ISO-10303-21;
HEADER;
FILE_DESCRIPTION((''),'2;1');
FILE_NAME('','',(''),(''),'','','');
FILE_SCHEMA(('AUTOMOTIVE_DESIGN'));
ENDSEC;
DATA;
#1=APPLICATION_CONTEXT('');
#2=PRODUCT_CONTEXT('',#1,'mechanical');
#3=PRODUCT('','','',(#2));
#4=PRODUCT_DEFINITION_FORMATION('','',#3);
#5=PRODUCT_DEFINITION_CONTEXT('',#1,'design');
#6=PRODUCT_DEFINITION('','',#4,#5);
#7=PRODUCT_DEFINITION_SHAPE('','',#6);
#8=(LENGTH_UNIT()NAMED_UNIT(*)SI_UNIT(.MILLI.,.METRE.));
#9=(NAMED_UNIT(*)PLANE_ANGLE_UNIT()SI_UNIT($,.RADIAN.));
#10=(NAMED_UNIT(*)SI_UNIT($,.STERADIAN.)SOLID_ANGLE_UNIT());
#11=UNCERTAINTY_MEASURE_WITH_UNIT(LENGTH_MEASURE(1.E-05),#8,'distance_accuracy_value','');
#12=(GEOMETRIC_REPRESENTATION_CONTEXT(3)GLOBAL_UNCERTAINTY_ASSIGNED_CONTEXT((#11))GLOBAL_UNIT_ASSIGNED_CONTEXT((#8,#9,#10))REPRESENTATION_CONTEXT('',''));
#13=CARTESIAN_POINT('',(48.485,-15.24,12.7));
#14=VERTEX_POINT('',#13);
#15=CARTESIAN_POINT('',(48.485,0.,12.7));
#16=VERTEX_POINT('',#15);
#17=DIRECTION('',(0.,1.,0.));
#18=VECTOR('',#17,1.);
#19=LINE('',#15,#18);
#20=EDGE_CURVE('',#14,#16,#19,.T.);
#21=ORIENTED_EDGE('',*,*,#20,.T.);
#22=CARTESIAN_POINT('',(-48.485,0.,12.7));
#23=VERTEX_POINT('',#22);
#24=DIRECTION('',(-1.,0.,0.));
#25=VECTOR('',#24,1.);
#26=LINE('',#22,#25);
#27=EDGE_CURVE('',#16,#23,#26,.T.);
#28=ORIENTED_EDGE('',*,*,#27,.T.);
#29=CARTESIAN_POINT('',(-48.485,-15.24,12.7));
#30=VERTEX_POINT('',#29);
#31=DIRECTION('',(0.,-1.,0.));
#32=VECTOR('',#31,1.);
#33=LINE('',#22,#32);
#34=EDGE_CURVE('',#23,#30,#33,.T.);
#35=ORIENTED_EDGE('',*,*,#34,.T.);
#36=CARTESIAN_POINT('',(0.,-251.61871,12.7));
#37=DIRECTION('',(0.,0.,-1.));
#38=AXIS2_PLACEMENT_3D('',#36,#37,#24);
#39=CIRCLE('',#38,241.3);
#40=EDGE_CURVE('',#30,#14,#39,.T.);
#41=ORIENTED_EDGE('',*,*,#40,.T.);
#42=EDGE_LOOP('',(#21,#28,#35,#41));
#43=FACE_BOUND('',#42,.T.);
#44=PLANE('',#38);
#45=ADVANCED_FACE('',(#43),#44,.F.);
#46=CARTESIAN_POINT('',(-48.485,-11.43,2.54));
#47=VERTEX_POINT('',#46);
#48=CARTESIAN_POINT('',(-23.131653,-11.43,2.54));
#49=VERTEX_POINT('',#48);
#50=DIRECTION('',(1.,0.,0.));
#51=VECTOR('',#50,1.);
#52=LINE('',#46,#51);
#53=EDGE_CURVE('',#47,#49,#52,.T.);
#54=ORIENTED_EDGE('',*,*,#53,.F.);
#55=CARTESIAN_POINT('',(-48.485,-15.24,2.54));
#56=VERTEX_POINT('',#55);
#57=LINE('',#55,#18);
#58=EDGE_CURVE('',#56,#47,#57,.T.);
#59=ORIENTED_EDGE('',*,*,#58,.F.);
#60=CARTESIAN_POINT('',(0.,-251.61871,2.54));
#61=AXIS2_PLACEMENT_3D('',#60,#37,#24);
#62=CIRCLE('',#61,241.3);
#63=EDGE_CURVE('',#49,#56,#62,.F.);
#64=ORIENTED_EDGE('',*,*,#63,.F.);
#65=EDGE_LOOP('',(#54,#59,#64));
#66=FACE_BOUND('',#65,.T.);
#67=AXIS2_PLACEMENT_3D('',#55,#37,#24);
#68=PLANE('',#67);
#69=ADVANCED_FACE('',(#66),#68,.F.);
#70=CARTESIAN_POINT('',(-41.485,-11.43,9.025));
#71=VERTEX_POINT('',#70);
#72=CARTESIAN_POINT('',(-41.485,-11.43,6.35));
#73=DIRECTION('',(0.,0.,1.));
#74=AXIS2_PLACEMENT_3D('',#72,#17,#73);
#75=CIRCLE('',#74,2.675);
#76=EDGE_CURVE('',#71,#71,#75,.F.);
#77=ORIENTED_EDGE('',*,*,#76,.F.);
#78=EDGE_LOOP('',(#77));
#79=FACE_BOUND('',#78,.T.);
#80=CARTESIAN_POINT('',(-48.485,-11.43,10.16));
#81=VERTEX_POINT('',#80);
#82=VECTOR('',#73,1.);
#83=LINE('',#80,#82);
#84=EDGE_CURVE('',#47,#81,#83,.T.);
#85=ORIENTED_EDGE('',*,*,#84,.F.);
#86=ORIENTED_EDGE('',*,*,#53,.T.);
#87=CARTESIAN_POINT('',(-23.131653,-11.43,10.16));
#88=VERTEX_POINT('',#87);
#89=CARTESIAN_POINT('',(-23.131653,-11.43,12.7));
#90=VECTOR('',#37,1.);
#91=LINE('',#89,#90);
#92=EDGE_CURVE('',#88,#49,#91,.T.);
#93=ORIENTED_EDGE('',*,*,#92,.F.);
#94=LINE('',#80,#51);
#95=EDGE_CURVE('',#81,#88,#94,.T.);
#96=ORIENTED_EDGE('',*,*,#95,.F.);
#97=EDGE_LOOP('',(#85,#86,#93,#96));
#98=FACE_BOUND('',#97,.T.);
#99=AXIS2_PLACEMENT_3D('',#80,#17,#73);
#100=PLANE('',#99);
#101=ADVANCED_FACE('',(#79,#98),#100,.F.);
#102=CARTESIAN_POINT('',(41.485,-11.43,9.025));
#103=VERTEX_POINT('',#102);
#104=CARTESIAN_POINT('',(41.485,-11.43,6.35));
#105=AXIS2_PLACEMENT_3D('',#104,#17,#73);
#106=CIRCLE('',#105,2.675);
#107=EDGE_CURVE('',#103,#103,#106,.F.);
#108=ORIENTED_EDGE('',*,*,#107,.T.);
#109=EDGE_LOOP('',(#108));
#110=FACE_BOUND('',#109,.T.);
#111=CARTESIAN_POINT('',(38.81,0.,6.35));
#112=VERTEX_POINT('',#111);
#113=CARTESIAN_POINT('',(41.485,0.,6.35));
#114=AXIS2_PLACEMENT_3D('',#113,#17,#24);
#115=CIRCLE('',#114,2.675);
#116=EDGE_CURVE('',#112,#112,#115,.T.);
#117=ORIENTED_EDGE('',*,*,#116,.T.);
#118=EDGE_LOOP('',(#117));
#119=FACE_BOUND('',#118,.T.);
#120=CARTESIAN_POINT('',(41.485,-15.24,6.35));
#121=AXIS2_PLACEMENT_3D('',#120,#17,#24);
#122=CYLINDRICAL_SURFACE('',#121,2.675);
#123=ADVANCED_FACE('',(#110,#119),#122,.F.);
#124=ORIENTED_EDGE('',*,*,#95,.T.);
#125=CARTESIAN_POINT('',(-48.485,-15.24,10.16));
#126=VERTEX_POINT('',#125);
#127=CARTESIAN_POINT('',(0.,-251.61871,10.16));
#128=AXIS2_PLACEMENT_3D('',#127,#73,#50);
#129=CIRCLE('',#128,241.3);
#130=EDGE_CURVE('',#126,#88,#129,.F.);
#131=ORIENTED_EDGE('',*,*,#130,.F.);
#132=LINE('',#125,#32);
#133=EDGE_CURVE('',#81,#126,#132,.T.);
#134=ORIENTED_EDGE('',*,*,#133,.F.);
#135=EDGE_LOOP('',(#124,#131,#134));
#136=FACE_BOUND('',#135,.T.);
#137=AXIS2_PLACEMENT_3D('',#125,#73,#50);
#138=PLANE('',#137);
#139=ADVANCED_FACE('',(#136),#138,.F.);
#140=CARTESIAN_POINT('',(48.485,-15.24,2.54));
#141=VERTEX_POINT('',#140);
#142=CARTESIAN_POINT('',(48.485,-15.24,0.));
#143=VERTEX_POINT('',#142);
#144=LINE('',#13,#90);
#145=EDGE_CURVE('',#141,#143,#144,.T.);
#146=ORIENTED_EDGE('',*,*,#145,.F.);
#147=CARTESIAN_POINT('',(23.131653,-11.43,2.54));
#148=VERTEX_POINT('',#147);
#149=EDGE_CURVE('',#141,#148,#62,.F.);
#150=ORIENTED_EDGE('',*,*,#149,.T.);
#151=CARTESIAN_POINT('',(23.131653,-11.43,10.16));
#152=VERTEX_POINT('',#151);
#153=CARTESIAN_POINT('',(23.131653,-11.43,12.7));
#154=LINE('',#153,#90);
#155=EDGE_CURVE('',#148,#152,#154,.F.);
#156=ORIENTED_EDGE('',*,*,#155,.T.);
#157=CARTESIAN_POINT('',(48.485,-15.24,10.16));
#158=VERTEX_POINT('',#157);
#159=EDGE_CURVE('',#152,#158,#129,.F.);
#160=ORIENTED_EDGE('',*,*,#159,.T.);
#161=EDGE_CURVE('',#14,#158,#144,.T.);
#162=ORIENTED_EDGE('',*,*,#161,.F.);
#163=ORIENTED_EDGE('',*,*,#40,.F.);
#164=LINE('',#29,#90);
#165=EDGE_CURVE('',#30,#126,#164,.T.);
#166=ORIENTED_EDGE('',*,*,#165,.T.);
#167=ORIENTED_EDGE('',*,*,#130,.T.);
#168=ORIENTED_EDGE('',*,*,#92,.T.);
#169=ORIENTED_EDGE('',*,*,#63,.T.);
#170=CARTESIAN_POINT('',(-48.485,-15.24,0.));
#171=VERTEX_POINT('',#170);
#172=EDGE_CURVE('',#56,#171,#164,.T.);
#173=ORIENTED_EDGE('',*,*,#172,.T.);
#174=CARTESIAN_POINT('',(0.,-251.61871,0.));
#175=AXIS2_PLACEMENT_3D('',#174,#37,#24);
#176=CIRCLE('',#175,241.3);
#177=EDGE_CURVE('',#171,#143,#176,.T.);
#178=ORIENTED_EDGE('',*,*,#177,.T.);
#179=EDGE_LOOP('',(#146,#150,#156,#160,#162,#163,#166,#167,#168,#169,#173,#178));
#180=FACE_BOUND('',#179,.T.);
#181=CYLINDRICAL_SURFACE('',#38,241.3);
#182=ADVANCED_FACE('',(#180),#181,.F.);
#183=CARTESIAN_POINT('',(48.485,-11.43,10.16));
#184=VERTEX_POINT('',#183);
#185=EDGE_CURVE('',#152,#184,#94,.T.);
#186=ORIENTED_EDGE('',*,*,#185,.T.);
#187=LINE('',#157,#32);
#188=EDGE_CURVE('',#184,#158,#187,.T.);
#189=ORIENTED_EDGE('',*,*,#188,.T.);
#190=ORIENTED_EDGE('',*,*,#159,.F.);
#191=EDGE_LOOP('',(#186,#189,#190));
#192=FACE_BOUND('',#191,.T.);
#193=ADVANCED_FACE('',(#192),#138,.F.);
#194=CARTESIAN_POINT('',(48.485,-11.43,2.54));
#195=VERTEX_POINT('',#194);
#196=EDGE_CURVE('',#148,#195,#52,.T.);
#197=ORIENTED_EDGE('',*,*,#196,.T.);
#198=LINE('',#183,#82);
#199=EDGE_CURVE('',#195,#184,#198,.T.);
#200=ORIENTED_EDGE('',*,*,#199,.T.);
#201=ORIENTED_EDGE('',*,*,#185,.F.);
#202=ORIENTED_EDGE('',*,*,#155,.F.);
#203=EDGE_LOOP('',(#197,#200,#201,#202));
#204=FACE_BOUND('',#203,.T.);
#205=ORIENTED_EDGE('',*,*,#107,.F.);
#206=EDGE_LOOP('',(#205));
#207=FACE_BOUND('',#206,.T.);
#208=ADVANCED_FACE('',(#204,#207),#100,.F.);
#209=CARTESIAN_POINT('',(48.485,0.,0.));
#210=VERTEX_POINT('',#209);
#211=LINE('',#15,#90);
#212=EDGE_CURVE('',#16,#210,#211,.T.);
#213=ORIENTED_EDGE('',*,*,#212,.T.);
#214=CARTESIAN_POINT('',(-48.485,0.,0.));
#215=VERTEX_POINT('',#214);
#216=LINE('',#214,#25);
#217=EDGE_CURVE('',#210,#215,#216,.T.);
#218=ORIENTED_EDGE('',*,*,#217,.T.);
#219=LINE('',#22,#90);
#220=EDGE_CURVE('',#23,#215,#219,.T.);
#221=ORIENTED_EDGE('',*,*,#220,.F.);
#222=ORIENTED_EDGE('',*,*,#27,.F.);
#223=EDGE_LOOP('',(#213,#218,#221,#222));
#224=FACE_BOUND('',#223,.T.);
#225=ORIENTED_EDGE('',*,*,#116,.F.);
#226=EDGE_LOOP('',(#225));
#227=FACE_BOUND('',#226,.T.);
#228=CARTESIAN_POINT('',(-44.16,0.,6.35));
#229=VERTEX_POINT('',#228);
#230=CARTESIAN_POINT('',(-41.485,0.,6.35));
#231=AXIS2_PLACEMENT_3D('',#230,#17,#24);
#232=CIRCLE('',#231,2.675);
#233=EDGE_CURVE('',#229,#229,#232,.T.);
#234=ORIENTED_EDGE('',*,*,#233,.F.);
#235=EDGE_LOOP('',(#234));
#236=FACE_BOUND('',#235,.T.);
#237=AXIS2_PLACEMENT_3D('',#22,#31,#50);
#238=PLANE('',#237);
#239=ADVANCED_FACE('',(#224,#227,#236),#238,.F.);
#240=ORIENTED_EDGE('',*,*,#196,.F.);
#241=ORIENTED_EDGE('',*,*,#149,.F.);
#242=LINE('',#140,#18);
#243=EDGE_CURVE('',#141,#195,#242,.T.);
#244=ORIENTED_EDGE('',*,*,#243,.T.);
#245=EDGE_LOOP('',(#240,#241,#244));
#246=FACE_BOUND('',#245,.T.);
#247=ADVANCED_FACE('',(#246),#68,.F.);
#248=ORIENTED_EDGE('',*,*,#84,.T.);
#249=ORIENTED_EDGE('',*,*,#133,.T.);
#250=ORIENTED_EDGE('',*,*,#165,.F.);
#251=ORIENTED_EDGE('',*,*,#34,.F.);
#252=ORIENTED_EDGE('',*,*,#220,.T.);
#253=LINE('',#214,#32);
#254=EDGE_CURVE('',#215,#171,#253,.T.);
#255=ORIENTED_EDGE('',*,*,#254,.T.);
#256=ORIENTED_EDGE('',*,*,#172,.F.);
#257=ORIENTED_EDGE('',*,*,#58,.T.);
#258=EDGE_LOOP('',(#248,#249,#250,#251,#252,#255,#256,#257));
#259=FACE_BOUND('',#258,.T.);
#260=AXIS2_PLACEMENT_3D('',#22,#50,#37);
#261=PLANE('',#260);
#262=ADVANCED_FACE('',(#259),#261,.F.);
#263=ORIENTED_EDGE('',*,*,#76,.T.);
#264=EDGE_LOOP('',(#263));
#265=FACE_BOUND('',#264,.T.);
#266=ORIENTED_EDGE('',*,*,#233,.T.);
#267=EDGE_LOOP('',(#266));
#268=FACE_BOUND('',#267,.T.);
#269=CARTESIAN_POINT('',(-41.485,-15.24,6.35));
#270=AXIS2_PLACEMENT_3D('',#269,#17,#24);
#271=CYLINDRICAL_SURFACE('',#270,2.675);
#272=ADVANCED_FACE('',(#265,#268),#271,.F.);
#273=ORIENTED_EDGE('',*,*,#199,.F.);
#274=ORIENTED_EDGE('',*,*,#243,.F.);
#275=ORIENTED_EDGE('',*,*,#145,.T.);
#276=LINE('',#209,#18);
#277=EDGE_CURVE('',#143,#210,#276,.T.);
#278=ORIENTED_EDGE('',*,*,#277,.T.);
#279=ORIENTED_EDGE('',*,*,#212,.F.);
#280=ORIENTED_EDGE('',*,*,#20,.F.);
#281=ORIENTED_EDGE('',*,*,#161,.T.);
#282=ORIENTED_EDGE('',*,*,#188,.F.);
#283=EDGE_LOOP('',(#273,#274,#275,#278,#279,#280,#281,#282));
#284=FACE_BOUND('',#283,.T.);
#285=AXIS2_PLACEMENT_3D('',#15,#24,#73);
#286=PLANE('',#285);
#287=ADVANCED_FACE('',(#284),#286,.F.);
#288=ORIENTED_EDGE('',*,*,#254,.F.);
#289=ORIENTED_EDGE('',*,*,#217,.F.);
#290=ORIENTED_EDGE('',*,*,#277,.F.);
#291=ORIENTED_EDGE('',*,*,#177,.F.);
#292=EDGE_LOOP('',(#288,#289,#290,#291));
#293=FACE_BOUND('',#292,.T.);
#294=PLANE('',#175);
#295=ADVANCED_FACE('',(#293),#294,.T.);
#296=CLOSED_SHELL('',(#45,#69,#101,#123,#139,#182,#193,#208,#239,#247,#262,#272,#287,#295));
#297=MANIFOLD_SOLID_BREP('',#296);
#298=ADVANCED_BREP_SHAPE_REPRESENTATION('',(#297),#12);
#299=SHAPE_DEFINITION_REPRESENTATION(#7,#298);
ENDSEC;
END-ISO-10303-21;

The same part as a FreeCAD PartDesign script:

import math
import FreeCAD as App
import Part
import Sketcher

V = App.Vector
Q = App.Units.Quantity

doc = App.newDocument("Part")
params = doc.addObject("Spreadsheet::Sheet", "Params")
for row, (alias, value) in enumerate([
    ("sketch1_radius", "9.5 in"),
    ("sketch1_height", "0.6 in"),
    ("pad1_length", "0.5 in"),
    ("sketch3_height", "0.3 in"),
    ("sketch3_width", "0.15 in"),
], start=1):
    params.set(f"A{row}", alias)
    params.set(f"B{row}", "=" + value)
    params.setAlias(f"B{row}", alias)

body = doc.addObject("PartDesign::Body", "Body")

sketch1 = body.newObject("Sketcher::SketchObject", "Sketch")
sketch1.AttachmentSupport = (doc.getObject("XY_Plane"), [""])
sketch1.MapMode = "FlatFace"
sketch1.addGeometry([
    Part.LineSegment(V(48, 0, 0), V(-48, 0, 0)),
    Part.LineSegment(V(-48, 0, 0), V(-48, -15, 0)),
    Part.ArcOfCircle(Part.Circle(V(0, -252, 0), V(0, 0, 1), 241), math.radians(78), math.radians(102)),
    Part.LineSegment(V(48, -15, 0), V(48, 0, 0)),
], False)
sketch1.addConstraint([
    Sketcher.Constraint("Coincident", 0, 2, 1, 1),
    Sketcher.Constraint("Coincident", 1, 2, 2, 2),
    Sketcher.Constraint("Coincident", 2, 1, 3, 1),
    Sketcher.Constraint("Coincident", 3, 2, 0, 1),
    Sketcher.Constraint("Horizontal", 0),
    Sketcher.Constraint("Vertical", 1),
    Sketcher.Constraint("Vertical", 3),
    Sketcher.Constraint("Symmetric", 0, 2, 3, 2, -1, 1),
    Sketcher.Constraint("PointOnObject", 2, 3, -2),
    Sketcher.Constraint("Radius", 2, Q("9.5 in")),
    Sketcher.Constraint("DistanceY", 1, 2, 1, 1, Q("0.6 in")),
    Sketcher.Constraint("DistanceX", 0, 2, 0, 1, Q("96.97 mm")),
])
sketch1.setExpression("Constraints[9]", "Params.sketch1_radius")
sketch1.setExpression("Constraints[10]", "Params.sketch1_height")
pad1 = body.newObject("PartDesign::Pad", "Pad")
pad1.Profile = sketch1
pad1.setExpression("Length", "Params.pad1_length")

sketch2 = body.newObject("Sketcher::SketchObject", "Sketch001")
sketch2.AttachmentSupport = (doc.getObject("XZ_Plane"), [""])
sketch2.MapMode = "FlatFace"
sketch2.addGeometry([
    Part.Circle(V(-41.5, 6.3, 0), V(0, 0, 1), 2.7),
    Part.Circle(V(41.5, 6.3, 0), V(0, 0, 1), 2.7),
], False)
sketch2.addConstraint([
    Sketcher.Constraint("Equal", 0, 1),
    Sketcher.Constraint("Symmetric", 0, 3, 1, 3, -2),
    Sketcher.Constraint("Diameter", 0, Q("5.35 mm")),
    Sketcher.Constraint("DistanceY", -1, 1, 0, 3, Q("0.25 in")),
    Sketcher.Constraint("DistanceX", 0, 3, -1, 1, Q("41.485 mm")),
])
pocket1 = body.newObject("PartDesign::Pocket", "Pocket")
pocket1.Profile = sketch2
pocket1.Type = "ThroughAll"
pocket1.Reversed = True

sketch3 = body.newObject("Sketcher::SketchObject", "Sketch002")
sketch3.AttachmentSupport = (doc.getObject("YZ_Plane"), [""])
sketch3.MapMode = "FlatFace"
sketch3.AttachmentOffset = App.Placement(V(0, 0, 48.485), App.Rotation())
sketch3.addGeometry([
    Part.LineSegment(V(-11.4, 10.2, 0), V(-15.2, 10.2, 0)),
    Part.LineSegment(V(-15.2, 10.2, 0), V(-15.2, 2.5, 0)),
    Part.LineSegment(V(-15.2, 2.5, 0), V(-11.4, 2.5, 0)),
    Part.LineSegment(V(-11.4, 2.5, 0), V(-11.4, 10.2, 0)),
], False)
sketch3.addConstraint([
    Sketcher.Constraint("Coincident", 0, 2, 1, 1),
    Sketcher.Constraint("Coincident", 1, 2, 2, 1),
    Sketcher.Constraint("Coincident", 2, 2, 3, 1),
    Sketcher.Constraint("Coincident", 3, 2, 0, 1),
    Sketcher.Constraint("Horizontal", 0),
    Sketcher.Constraint("Vertical", 1),
    Sketcher.Constraint("Horizontal", 2),
    Sketcher.Constraint("Vertical", 3),
    Sketcher.Constraint("DistanceY", 1, 2, 1, 1, Q("0.3 in")),
    Sketcher.Constraint("DistanceX", 0, 2, 0, 1, Q("0.15 in")),
    Sketcher.Constraint("DistanceX", 0, 2, -1, 1, Q("0.6 in")),
    Sketcher.Constraint("DistanceY", -1, 1, 0, 2, Q("0.4 in")),
])
sketch3.setExpression("Constraints[8]", "Params.sketch3_height")
sketch3.setExpression("Constraints[9]", "Params.sketch3_width")
pocket2 = body.newObject("PartDesign::Pocket", "Pocket001")
pocket2.Profile = sketch3
pocket2.Type = "ThroughAll"

doc.recompute()
